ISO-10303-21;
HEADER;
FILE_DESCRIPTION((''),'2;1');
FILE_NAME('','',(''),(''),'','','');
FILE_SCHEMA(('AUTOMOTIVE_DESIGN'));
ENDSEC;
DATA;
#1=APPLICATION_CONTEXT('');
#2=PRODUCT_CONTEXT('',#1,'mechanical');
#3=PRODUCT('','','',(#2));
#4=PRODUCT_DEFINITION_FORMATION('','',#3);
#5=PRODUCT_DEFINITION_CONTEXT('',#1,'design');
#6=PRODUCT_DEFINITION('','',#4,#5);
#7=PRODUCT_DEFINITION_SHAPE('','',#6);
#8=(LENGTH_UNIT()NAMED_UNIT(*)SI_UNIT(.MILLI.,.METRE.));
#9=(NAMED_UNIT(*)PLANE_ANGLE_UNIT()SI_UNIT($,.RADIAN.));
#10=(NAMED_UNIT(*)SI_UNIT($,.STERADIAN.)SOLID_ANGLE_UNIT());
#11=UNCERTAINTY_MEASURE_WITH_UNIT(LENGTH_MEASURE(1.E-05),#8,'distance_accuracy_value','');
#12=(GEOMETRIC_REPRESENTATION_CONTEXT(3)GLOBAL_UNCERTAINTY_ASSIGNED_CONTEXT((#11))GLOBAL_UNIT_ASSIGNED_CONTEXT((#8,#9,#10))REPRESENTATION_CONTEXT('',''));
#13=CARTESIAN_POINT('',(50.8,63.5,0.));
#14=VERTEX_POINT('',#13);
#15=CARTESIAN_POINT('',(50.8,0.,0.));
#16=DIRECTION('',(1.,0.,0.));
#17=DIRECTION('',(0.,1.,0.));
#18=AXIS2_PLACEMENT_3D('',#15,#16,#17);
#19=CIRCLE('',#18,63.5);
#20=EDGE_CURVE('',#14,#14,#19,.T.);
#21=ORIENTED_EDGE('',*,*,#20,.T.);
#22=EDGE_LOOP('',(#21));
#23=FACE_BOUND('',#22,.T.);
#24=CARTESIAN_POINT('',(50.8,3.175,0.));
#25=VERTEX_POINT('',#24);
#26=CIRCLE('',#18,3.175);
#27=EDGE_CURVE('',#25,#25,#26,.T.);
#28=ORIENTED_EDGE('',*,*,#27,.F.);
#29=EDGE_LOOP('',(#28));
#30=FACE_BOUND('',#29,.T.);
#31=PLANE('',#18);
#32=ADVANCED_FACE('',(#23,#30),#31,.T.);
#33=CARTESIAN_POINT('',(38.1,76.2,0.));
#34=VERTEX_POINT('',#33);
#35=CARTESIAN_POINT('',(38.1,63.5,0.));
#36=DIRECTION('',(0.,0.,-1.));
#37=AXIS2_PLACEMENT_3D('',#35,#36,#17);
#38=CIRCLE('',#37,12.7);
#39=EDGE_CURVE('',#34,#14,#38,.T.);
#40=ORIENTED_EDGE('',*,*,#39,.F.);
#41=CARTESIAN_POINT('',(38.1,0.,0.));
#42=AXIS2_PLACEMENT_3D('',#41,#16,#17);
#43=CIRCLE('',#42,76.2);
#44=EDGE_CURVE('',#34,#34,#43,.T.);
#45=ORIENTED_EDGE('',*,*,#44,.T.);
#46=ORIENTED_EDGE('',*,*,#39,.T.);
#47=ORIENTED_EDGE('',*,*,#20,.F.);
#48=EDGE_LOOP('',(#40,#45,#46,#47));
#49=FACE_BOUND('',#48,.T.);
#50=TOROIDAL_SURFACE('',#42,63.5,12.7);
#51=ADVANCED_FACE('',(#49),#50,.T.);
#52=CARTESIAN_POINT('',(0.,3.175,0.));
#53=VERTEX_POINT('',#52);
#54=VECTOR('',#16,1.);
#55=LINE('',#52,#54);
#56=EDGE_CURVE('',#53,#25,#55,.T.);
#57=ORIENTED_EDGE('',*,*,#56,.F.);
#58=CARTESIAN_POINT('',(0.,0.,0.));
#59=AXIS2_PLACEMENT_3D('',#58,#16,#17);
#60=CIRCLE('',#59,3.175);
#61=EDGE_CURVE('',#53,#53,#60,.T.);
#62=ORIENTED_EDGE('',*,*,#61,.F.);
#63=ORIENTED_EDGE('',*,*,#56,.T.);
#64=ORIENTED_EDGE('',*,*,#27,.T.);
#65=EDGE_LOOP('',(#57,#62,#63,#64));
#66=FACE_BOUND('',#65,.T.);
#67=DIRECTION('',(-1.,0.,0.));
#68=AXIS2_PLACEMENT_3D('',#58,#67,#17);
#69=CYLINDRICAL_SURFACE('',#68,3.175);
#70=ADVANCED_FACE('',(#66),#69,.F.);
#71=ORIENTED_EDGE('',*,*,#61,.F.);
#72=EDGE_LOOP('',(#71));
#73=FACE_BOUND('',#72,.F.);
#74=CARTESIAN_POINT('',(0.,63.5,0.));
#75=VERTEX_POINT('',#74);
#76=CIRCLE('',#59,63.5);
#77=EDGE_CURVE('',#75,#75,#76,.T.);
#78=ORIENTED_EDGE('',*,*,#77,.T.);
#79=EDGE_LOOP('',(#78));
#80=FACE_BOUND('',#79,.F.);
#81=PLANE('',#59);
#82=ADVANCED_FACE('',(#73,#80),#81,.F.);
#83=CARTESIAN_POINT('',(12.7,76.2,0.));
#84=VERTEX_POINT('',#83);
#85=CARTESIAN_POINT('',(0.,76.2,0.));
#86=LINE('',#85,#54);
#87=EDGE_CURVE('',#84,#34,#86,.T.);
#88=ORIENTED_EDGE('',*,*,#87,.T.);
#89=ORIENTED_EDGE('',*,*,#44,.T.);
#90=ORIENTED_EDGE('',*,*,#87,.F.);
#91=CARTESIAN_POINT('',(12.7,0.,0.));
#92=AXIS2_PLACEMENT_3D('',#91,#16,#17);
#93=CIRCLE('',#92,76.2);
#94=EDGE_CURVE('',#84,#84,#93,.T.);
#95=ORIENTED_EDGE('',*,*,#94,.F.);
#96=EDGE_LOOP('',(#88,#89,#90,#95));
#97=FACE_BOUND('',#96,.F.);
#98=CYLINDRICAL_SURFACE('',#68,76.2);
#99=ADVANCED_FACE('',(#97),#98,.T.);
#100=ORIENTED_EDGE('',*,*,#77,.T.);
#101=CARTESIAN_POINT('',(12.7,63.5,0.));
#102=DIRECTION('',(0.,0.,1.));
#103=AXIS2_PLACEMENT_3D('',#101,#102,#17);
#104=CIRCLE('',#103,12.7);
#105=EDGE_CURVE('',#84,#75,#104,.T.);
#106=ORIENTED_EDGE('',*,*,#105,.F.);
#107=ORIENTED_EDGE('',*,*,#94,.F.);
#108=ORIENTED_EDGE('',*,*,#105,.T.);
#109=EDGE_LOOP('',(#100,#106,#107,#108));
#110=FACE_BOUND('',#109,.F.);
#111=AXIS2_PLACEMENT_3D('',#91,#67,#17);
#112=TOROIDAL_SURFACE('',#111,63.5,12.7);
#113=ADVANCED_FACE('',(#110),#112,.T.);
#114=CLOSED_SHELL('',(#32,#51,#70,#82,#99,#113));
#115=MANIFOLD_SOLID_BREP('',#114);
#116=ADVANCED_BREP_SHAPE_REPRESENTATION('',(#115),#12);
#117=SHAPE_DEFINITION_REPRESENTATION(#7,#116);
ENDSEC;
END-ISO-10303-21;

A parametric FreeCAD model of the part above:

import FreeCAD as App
import Part
import Sketcher
from FreeCAD import Vector
Q = App.Units.Quantity


def edges_at(feature, points):
    """Names of the edges that pass closest to the given points."""
    edges = feature.Shape.Edges
    near = lambda p: min(range(len(edges)), key=lambda i: edges[i].distToShape(Part.Vertex(*p))[0])
    return sorted({f"Edge{near(p) + 1}" for p in points})

doc = App.newDocument("Part")
params = doc.addObject("Spreadsheet::Sheet", "Params")
for row, (alias, value) in enumerate([
    ("sketch1_diameter", "6 in"),
    ("sketch1_diameter2", "0.25 in"),
    ("pad1_length", "2 in"),
    ("fillet_radius", "0.5 in"),
    ("fillet2_radius", "0.5 in"),
], start=1):
    params.set(f"A{row}", alias)
    params.set(f"B{row}", "=" + value)
    params.setAlias(f"B{row}", alias)

body = doc.addObject("PartDesign::Body", "Body")

sketch1 = doc.addObject("Sketcher::SketchObject", "Sketch")
body.addObject(sketch1)
sketch1.AttachmentSupport = (doc.YZ_Plane, [""])
sketch1.MapMode = "FlatFace"
sketch1.addGeometry([
    Part.Circle(Vector(0, 0, 0), Vector(0, 0, 1), 76.2),
    Part.Circle(Vector(0, 0, 0), Vector(0, 0, 1), 3.2),
], False)
sketch1.addConstraint([
    Sketcher.Constraint("Coincident", 0, 3, -1, 1),
    Sketcher.Constraint("Coincident", 1, 3, -1, 1),
    Sketcher.Constraint("Diameter", 0, Q("6 in")),
    Sketcher.Constraint("Diameter", 1, Q("0.25 in")),
])
sketch1.setExpression("Constraints[2]", "Params.sketch1_diameter")
sketch1.setExpression("Constraints[3]", "Params.sketch1_diameter2")
pad1 = doc.addObject("PartDesign::Pad", "Pad")
body.addObject(pad1)
pad1.Profile = sketch1
pad1.setExpression("Length", "Params.pad1_length")
doc.recompute()

fillet = doc.addObject("PartDesign::Fillet", "Fillet")
body.addObject(fillet)
fillet.Base = (pad1, edges_at(pad1, [(50.8, -76.2, 0)]))
fillet.setExpression("Radius", "Params.fillet_radius")
doc.recompute()

fillet2 = doc.addObject("PartDesign::Fillet", "Fillet001")
body.addObject(fillet2)
fillet2.Base = (fillet, edges_at(fillet, [(0, -76.2, 0)]))
fillet2.setExpression("Radius", "Params.fillet2_radius")

doc.recompute()
